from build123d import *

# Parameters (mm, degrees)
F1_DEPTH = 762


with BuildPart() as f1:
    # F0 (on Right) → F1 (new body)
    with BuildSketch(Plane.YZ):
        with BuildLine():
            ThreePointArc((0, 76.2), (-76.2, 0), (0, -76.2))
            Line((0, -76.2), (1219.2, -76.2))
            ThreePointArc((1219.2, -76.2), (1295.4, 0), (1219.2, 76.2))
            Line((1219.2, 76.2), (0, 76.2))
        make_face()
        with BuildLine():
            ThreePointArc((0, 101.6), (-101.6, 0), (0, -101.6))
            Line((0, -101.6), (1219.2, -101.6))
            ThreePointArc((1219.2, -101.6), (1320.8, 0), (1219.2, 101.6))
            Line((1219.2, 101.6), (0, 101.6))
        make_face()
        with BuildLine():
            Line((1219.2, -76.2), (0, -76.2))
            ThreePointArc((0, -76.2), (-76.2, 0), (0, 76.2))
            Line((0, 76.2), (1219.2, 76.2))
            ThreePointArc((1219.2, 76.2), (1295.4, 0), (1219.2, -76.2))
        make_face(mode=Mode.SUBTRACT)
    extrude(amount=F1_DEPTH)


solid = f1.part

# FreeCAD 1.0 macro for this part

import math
import FreeCAD as App
import Part
import Sketcher
from FreeCAD import Vector
Q = App.Units.Quantity

doc = App.newDocument("Part")
body = doc.addObject("PartDesign::Body", "Body")

# Sketch on YZ plane
sketch1 = body.newObject("Sketcher::SketchObject", "Sketch")
sketch1.AttachmentSupport = (doc.getObject("YZ_Plane"), [""])
sketch1.MapMode = "FlatFace"
sketch1.addGeometry([
    Part.ArcOfCircle(Part.Circle(Vector(0, 0, 0), Vector(0, 0, 1), 101.6), math.radians(90), math.radians(270)),  # 0
    Part.LineSegment(Vector(0, -101.6, 0), Vector(1219.2, -101.6, 0)),  # 1
    Part.ArcOfCircle(Part.Circle(Vector(1219.2, 0, 0), Vector(0, 0, 1), 101.6), math.radians(-90), math.radians(90)),  # 2
    Part.LineSegment(Vector(1219.2, 101.6, 0), Vector(0, 101.6, 0)),  # 3
    Part.ArcOfCircle(Part.Circle(Vector(1219.2, 0, 0), Vector(0, 0, 1), 76.2), math.radians(-90), math.radians(90)),  # 4
    Part.LineSegment(Vector(1219.2, -76.2, 0), Vector(0, -76.2, 0)),  # 5
    Part.ArcOfCircle(Part.Circle(Vector(0, 0, 0), Vector(0, 0, 1), 76.2), math.radians(90), math.radians(270)),  # 6
    Part.LineSegment(Vector(0, 76.2, 0), Vector(1219.2, 76.2, 0)),  # 7
], False)
sketch1.addConstraint([
    Sketcher.Constraint("Tangent", 0, 2, 1, 1),
    Sketcher.Constraint("Tangent", 1, 2, 2, 1),
    Sketcher.Constraint("Tangent", 2, 2, 3, 1),
    Sketcher.Constraint("Tangent", 3, 2, 0, 1),
    Sketcher.Constraint("Tangent", 4, 1, 5, 1),
    Sketcher.Constraint("Tangent", 5, 2, 6, 2),
    Sketcher.Constraint("Tangent", 6, 1, 7, 1),
    Sketcher.Constraint("Tangent", 7, 2, 4, 2),
    Sketcher.Constraint("Horizontal", 1),
    Sketcher.Constraint("Horizontal", 3),
    Sketcher.Constraint("Horizontal", 5),
    Sketcher.Constraint("Horizontal", 7),
    Sketcher.Constraint("Coincident", 0, 3, -1, 1),
    Sketcher.Constraint("Coincident", 6, 3, -1, 1),
    Sketcher.Constraint("Vertical", 4, 3, 1, 2),
    Sketcher.Constraint("Radius", 0, Q("4 in")),
    Sketcher.Constraint("Radius", 4, Q("3 in")),
    Sketcher.Constraint("DistanceX", 1, 1, 1, 2, Q("48 in")),
])
pad1 = body.newObject("PartDesign::Pad", "Pad")
pad1.Profile = sketch1
pad1.Length = Q("30 in")

doc.recompute()
